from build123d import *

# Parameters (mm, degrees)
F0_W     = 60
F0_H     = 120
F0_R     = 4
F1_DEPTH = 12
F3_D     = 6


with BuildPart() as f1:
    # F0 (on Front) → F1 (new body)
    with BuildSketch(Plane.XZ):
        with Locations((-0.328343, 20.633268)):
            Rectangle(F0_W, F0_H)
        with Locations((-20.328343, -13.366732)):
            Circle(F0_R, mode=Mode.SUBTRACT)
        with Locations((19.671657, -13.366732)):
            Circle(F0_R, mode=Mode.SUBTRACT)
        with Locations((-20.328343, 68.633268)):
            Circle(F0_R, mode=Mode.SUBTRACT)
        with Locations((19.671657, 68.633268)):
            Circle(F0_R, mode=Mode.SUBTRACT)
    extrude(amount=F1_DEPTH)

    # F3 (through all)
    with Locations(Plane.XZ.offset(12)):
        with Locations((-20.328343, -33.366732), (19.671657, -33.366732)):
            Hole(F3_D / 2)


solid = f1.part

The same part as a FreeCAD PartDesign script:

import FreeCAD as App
import Part
import Sketcher
Q = App.Units.Quantity


def add_polygon(sketch, points):
    """Adds a closed chain of lines whose ends are joined by coincident constraints."""
    first, n = sketch.GeometryCount, len(points)
    for a, b in zip(points, points[1:] + points[:1]):
        sketch.addGeometry(Part.LineSegment(App.Vector(*a, 0), App.Vector(*b, 0)), False)
    for i in range(n):
        sketch.addConstraint(Sketcher.Constraint("Coincident", first + i, 2, first + (i + 1) % n, 1))

doc = App.newDocument("Part")
body = doc.addObject("PartDesign::Body", "Body")

sketch1 = body.newObject("Sketcher::SketchObject", "Sketch")
sketch1.AttachmentSupport = (doc.getObject("XZ_Plane"), [""])
sketch1.MapMode = "FlatFace"
add_polygon(sketch1, [(-30.328343, 80.633268), (-30.328343, -39.366732), (29.671657, -39.366732), (29.671657, 80.633268)])
sketch1.addGeometry(Part.Circle(App.Vector(-20.328343, -13.366732, 0), App.Vector(0, 0, 1), 4), False)
sketch1.addGeometry(Part.Circle(App.Vector(19.671657, -13.366732, 0), App.Vector(0, 0, 1), 4), False)
sketch1.addGeometry(Part.Circle(App.Vector(-20.328343, 68.633268, 0), App.Vector(0, 0, 1), 4), False)
sketch1.addGeometry(Part.Circle(App.Vector(19.671657, 68.633268, 0), App.Vector(0, 0, 1), 4), False)
sketch1.addConstraint(Sketcher.Constraint("Vertical", 0))
sketch1.addConstraint(Sketcher.Constraint("Horizontal", 1))
sketch1.addConstraint(Sketcher.Constraint("Vertical", 2))
sketch1.addConstraint(Sketcher.Constraint("Horizontal", 3))
sketch1.addConstraint(Sketcher.Constraint("Equal", 4, 5))
sketch1.addConstraint(Sketcher.Constraint("Equal", 5, 6))
sketch1.addConstraint(Sketcher.Constraint("Equal", 6, 7))
sketch1.addConstraint(Sketcher.Constraint("Horizontal", 4, 3, 5, 3))
sketch1.addConstraint(Sketcher.Constraint("Horizontal", 6, 3, 7, 3))
sketch1.addConstraint(Sketcher.Constraint("Vertical", 4, 3, 6, 3))
sketch1.addConstraint(Sketcher.Constraint("Vertical", 5, 3, 7, 3))
sketch1.addConstraint(Sketcher.Constraint("Diameter", 4, Q("8 mm")))
sketch1.addConstraint(Sketcher.Constraint("DistanceX", 1, 1, 1, 2, Q("60 mm")))
sketch1.addConstraint(Sketcher.Constraint("DistanceY", 0, 2, 0, 1, Q("120 mm")))
sketch1.addConstraint(Sketcher.Constraint("DistanceX", 4, 3, 5, 3, Q("40 mm")))
sketch1.addConstraint(Sketcher.Constraint("DistanceY", 4, 3, 6, 3, Q("82 mm")))
sketch1.addConstraint(Sketcher.Constraint("DistanceX", 0, 2, 4, 3, Q("10 mm")))
sketch1.addConstraint(Sketcher.Constraint("DistanceY", 0, 2, 4, 3, Q("26 mm")))
sketch1.addConstraint(Sketcher.Constraint("DistanceY", -1, 1, 6, 3, Q("68.633268 mm")))
sketch1.addConstraint(Sketcher.Constraint("DistanceX", 4, 3, -1, 1, Q("20.328343 mm")))
pad1 = body.newObject("PartDesign::Pad", "Pad")
pad1.Profile = sketch1
pad1.Length = 12

sketch2 = body.newObject("Sketcher::SketchObject", "Sketch001")
sketch2.AttachmentSupport = (doc.getObject("XZ_Plane"), [""])
sketch2.MapMode = "FlatFace"
sketch2.AttachmentOffset = App.Placement(App.Vector(0, 0, 12), App.Rotation())
sketch2.addGeometry(Part.Circle(App.Vector(-20.328343, -33.366732, 0), App.Vector(0, 0, 1), 3), False)
sketch2.addGeometry(Part.Circle(App.Vector(19.671657, -33.366732, 0), App.Vector(0, 0, 1), 3), False)
sketch2.addConstraint(Sketcher.Constraint("Equal", 0, 1))
sketch2.addConstraint(Sketcher.Constraint("Horizontal", 0, 3, 1, 3))
sketch2.addConstraint(Sketcher.Constraint("Diameter", 0, Q("6 mm")))
sketch2.addConstraint(Sketcher.Constraint("DistanceX", 0, 3, 1, 3, Q("40 mm")))
sketch2.addConstraint(Sketcher.Constraint("DistanceX", 0, 3, -1, 1, Q("20.328343 mm")))
sketch2.addConstraint(Sketcher.Constraint("DistanceY", 0, 3, -1, 1, Q("33.366732 mm")))
doc.recompute()
hole = body.newObject("PartDesign::Hole", "Hole")
hole.Profile = sketch2
hole.ThreadType = "None"
hole.Diameter = 6
hole.DepthType = "ThroughAll"

doc.recompute()
